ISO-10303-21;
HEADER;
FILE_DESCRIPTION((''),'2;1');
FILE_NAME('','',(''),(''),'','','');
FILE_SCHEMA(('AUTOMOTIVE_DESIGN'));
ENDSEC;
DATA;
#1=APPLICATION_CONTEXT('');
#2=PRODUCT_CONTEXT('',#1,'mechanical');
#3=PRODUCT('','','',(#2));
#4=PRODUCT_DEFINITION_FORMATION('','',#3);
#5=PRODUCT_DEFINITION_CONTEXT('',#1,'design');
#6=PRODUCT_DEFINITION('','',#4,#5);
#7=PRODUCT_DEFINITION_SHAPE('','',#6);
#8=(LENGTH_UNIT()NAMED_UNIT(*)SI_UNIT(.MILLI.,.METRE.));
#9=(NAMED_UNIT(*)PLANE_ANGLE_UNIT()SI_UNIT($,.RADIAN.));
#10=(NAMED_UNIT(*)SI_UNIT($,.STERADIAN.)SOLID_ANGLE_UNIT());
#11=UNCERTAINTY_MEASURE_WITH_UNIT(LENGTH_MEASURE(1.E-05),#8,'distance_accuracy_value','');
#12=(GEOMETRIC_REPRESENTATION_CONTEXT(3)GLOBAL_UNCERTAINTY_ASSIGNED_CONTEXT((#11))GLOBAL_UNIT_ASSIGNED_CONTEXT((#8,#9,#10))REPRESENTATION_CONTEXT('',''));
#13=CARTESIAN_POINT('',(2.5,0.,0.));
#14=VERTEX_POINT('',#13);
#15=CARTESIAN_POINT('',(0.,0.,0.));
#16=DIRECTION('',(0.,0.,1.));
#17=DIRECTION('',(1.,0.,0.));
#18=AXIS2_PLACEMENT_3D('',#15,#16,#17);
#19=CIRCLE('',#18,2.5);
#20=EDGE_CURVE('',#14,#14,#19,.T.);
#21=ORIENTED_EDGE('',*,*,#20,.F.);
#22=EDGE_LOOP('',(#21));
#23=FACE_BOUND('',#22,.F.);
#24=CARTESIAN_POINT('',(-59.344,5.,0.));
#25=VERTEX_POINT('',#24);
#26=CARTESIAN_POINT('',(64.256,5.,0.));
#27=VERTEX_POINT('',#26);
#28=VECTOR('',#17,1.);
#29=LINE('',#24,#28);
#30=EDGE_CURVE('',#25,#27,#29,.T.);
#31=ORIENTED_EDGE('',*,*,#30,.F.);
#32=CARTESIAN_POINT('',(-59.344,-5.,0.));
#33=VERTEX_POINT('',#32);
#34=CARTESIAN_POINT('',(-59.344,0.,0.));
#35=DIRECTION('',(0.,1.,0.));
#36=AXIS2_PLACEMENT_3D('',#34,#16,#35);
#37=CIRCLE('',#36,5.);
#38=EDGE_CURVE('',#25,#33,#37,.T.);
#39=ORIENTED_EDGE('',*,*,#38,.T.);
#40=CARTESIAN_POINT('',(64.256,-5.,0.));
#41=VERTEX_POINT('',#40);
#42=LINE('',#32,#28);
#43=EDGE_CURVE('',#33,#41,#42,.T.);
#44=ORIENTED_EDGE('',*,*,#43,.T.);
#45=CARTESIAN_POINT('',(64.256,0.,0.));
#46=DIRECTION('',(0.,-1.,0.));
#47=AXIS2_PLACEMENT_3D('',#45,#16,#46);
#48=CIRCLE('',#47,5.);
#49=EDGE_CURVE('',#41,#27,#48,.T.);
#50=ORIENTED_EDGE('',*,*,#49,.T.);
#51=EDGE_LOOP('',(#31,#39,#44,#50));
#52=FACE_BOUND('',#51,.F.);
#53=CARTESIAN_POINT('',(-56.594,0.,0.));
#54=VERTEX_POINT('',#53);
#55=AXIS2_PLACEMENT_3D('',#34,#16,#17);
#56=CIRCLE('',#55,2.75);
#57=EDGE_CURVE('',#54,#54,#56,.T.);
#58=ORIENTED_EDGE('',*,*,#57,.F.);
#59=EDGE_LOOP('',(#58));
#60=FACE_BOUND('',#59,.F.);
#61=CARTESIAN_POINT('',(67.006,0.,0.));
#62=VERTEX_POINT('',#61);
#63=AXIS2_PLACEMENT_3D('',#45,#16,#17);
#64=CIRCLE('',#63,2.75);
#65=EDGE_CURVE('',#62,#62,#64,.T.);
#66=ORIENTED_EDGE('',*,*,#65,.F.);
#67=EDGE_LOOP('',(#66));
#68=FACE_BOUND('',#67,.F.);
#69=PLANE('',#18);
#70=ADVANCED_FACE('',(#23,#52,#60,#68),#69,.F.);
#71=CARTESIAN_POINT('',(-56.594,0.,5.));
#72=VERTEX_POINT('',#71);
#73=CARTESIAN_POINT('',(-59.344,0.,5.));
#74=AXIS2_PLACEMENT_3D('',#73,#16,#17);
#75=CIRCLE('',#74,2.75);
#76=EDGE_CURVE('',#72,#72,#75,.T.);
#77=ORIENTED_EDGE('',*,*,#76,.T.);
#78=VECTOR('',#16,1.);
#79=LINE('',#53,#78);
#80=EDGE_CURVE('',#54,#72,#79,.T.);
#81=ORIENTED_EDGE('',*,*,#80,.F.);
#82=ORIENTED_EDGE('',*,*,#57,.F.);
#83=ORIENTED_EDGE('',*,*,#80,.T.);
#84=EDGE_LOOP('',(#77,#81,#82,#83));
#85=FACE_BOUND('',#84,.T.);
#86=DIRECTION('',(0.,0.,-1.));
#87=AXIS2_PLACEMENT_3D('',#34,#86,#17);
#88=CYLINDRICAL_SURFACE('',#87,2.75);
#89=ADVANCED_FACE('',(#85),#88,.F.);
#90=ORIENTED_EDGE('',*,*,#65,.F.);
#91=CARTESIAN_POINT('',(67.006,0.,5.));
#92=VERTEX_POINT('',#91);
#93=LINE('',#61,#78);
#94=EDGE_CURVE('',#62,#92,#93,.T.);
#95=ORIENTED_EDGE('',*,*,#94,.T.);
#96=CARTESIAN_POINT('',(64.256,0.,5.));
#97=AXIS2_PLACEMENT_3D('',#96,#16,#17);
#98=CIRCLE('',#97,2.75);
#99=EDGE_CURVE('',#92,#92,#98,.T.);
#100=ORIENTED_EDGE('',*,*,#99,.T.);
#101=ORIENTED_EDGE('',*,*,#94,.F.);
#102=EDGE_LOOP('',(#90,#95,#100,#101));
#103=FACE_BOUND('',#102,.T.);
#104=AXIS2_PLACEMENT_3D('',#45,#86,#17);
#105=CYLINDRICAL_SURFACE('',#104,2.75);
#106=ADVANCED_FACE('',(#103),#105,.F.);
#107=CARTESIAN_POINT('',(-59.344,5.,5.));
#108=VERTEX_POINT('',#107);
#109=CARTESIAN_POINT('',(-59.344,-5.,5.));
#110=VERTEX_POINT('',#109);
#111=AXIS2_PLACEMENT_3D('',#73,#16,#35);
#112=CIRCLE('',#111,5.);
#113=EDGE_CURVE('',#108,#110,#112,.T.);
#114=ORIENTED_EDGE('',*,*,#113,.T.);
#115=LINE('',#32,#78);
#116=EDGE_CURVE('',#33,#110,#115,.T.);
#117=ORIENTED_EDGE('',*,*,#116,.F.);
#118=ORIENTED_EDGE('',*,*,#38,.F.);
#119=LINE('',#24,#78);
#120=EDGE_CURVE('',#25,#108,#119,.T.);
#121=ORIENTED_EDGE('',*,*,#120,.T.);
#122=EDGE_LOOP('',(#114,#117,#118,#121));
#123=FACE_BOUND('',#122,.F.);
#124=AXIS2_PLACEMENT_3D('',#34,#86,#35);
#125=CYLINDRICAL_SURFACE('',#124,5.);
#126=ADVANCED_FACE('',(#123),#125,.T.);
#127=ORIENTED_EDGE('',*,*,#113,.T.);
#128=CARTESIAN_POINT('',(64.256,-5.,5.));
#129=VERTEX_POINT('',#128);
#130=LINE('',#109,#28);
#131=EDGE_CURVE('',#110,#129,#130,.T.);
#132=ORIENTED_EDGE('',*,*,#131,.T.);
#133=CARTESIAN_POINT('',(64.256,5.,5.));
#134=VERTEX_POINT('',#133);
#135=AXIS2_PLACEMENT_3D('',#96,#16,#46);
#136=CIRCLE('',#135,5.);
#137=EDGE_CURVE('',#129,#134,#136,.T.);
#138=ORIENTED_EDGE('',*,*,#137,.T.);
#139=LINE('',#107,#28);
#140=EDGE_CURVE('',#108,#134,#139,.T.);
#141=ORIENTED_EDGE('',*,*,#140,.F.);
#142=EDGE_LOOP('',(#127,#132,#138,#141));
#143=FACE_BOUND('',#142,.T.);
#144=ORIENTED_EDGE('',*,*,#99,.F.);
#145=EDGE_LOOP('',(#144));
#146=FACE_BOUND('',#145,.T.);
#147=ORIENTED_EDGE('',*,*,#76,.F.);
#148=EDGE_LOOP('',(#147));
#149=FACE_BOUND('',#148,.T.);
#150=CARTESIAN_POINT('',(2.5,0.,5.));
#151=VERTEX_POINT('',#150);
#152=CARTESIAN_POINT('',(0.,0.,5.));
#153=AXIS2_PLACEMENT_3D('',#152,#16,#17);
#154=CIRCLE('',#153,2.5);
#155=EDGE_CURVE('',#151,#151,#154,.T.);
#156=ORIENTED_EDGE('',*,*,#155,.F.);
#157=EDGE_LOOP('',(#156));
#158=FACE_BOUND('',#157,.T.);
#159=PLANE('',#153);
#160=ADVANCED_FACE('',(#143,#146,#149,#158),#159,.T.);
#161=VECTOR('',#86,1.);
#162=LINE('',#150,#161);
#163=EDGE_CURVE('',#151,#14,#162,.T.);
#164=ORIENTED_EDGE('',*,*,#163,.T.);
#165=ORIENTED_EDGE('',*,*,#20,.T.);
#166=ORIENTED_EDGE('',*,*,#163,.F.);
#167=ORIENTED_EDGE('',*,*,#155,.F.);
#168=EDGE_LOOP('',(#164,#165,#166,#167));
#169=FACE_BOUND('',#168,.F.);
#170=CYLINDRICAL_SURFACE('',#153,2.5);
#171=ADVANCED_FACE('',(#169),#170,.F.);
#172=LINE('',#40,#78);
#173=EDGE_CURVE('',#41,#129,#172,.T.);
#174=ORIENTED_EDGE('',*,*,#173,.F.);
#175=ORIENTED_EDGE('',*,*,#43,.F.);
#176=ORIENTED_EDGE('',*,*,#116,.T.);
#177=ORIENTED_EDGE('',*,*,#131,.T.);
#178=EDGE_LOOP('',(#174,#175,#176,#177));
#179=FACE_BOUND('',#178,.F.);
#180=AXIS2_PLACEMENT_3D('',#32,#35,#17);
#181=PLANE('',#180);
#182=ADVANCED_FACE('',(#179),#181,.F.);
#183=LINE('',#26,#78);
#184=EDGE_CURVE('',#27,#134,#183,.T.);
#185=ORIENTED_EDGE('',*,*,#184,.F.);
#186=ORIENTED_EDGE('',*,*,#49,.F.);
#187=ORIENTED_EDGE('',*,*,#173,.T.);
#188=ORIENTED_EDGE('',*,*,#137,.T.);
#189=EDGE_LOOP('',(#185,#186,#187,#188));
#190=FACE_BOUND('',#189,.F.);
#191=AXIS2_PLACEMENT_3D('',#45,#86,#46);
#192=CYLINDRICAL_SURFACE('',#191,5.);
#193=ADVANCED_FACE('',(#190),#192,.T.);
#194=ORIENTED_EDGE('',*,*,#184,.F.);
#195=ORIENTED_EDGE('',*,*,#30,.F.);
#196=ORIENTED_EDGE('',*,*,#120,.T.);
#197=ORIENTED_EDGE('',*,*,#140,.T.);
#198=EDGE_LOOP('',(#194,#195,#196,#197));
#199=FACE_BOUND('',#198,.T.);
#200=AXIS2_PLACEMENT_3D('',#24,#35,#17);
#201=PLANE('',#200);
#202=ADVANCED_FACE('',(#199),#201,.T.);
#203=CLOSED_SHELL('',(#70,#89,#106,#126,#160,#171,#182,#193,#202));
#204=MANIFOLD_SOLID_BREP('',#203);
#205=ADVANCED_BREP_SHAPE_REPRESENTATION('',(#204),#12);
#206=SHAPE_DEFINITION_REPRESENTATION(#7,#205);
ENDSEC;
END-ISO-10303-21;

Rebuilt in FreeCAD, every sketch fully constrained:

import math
import FreeCAD as App
import Part
import Sketcher

doc = App.newDocument("Part")
body = doc.addObject("PartDesign::Body", "Body")

sketch1 = doc.addObject("Sketcher::SketchObject", "Sketch")
body.addObject(sketch1)
sketch1.AttachmentSupport = (doc.XY_Plane, [""])
sketch1.MapMode = "FlatFace"
sketch1.addGeometry(Part.LineSegment(App.Vector(64.256, 5, 0), App.Vector(-59.344, 5, 0)), False)
sketch1.addGeometry(Part.ArcOfCircle(Part.Circle(App.Vector(-59.344, 0, 0), App.Vector(0, 0, 1), 5), math.radians(90), math.radians(270)), False)
sketch1.addGeometry(Part.LineSegment(App.Vector(-59.344, -5, 0), App.Vector(64.256, -5, 0)), False)
sketch1.addGeometry(Part.ArcOfCircle(Part.Circle(App.Vector(64.256, 0, 0), App.Vector(0, 0, 1), 5), math.radians(-90), math.radians(90)), False)
sketch1.addGeometry(Part.Circle(App.Vector(-59.344, 0, 0), App.Vector(0, 0, 1), 2.75), False)
sketch1.addGeometry(Part.Circle(App.Vector(64.256, 0, 0), App.Vector(0, 0, 1), 2.75), False)
sketch1.addConstraint(Sketcher.Constraint("Tangent", 0, 2, 1, 1))
sketch1.addConstraint(Sketcher.Constraint("Tangent", 1, 2, 2, 1))
sketch1.addConstraint(Sketcher.Constraint("Tangent", 2, 2, 3, 1))
sketch1.addConstraint(Sketcher.Constraint("Tangent", 3, 2, 0, 1))
sketch1.addConstraint(Sketcher.Constraint("Horizontal", 0))
sketch1.addConstraint(Sketcher.Constraint("Horizontal", 2))
sketch1.addConstraint(Sketcher.Constraint("Coincident", 4, 3, 1, 3))
sketch1.addConstraint(Sketcher.Constraint("Coincident", 5, 3, 3, 3))
sketch1.addConstraint(Sketcher.Constraint("Equal", 4, 5))
sketch1.addConstraint(Sketcher.Constraint("PointOnObject", 1, 3, -1))
sketch1.addConstraint(Sketcher.Constraint("Radius", 1, 5.0))
sketch1.addConstraint(Sketcher.Constraint("Diameter", 4, 5.5))
sketch1.addConstraint(Sketcher.Constraint("DistanceX", 0, 2, 0, 1, 123.6))
sketch1.addConstraint(Sketcher.Constraint("DistanceX", -1, 1, 3, 3, 64.256))
pad1 = doc.addObject("PartDesign::Pad", "Pad")
body.addObject(pad1)
pad1.Profile = sketch1
pad1.Length = 5

sketch2 = doc.addObject("Sketcher::SketchObject", "Sketch001")
body.addObject(sketch2)
sketch2.AttachmentSupport = (doc.XY_Plane, [""])
sketch2.MapMode = "FlatFace"
sketch2.AttachmentOffset = App.Placement(App.Vector(0, 0, 5), App.Rotation())
sketch2.addGeometry(Part.Circle(App.Vector(0, 0, 0), App.Vector(0, 0, 1), 2.5), False)
sketch2.addConstraint(Sketcher.Constraint("Coincident", 0, 3, -1, 1))
sketch2.addConstraint(Sketcher.Constraint("Diameter", 0, 5.0))
pocket1 = doc.addObject("PartDesign::Pocket", "Pocket")
body.addObject(pocket1)
pocket1.Profile = sketch2
pocket1.Type = "ThroughAll"

doc.recompute()
